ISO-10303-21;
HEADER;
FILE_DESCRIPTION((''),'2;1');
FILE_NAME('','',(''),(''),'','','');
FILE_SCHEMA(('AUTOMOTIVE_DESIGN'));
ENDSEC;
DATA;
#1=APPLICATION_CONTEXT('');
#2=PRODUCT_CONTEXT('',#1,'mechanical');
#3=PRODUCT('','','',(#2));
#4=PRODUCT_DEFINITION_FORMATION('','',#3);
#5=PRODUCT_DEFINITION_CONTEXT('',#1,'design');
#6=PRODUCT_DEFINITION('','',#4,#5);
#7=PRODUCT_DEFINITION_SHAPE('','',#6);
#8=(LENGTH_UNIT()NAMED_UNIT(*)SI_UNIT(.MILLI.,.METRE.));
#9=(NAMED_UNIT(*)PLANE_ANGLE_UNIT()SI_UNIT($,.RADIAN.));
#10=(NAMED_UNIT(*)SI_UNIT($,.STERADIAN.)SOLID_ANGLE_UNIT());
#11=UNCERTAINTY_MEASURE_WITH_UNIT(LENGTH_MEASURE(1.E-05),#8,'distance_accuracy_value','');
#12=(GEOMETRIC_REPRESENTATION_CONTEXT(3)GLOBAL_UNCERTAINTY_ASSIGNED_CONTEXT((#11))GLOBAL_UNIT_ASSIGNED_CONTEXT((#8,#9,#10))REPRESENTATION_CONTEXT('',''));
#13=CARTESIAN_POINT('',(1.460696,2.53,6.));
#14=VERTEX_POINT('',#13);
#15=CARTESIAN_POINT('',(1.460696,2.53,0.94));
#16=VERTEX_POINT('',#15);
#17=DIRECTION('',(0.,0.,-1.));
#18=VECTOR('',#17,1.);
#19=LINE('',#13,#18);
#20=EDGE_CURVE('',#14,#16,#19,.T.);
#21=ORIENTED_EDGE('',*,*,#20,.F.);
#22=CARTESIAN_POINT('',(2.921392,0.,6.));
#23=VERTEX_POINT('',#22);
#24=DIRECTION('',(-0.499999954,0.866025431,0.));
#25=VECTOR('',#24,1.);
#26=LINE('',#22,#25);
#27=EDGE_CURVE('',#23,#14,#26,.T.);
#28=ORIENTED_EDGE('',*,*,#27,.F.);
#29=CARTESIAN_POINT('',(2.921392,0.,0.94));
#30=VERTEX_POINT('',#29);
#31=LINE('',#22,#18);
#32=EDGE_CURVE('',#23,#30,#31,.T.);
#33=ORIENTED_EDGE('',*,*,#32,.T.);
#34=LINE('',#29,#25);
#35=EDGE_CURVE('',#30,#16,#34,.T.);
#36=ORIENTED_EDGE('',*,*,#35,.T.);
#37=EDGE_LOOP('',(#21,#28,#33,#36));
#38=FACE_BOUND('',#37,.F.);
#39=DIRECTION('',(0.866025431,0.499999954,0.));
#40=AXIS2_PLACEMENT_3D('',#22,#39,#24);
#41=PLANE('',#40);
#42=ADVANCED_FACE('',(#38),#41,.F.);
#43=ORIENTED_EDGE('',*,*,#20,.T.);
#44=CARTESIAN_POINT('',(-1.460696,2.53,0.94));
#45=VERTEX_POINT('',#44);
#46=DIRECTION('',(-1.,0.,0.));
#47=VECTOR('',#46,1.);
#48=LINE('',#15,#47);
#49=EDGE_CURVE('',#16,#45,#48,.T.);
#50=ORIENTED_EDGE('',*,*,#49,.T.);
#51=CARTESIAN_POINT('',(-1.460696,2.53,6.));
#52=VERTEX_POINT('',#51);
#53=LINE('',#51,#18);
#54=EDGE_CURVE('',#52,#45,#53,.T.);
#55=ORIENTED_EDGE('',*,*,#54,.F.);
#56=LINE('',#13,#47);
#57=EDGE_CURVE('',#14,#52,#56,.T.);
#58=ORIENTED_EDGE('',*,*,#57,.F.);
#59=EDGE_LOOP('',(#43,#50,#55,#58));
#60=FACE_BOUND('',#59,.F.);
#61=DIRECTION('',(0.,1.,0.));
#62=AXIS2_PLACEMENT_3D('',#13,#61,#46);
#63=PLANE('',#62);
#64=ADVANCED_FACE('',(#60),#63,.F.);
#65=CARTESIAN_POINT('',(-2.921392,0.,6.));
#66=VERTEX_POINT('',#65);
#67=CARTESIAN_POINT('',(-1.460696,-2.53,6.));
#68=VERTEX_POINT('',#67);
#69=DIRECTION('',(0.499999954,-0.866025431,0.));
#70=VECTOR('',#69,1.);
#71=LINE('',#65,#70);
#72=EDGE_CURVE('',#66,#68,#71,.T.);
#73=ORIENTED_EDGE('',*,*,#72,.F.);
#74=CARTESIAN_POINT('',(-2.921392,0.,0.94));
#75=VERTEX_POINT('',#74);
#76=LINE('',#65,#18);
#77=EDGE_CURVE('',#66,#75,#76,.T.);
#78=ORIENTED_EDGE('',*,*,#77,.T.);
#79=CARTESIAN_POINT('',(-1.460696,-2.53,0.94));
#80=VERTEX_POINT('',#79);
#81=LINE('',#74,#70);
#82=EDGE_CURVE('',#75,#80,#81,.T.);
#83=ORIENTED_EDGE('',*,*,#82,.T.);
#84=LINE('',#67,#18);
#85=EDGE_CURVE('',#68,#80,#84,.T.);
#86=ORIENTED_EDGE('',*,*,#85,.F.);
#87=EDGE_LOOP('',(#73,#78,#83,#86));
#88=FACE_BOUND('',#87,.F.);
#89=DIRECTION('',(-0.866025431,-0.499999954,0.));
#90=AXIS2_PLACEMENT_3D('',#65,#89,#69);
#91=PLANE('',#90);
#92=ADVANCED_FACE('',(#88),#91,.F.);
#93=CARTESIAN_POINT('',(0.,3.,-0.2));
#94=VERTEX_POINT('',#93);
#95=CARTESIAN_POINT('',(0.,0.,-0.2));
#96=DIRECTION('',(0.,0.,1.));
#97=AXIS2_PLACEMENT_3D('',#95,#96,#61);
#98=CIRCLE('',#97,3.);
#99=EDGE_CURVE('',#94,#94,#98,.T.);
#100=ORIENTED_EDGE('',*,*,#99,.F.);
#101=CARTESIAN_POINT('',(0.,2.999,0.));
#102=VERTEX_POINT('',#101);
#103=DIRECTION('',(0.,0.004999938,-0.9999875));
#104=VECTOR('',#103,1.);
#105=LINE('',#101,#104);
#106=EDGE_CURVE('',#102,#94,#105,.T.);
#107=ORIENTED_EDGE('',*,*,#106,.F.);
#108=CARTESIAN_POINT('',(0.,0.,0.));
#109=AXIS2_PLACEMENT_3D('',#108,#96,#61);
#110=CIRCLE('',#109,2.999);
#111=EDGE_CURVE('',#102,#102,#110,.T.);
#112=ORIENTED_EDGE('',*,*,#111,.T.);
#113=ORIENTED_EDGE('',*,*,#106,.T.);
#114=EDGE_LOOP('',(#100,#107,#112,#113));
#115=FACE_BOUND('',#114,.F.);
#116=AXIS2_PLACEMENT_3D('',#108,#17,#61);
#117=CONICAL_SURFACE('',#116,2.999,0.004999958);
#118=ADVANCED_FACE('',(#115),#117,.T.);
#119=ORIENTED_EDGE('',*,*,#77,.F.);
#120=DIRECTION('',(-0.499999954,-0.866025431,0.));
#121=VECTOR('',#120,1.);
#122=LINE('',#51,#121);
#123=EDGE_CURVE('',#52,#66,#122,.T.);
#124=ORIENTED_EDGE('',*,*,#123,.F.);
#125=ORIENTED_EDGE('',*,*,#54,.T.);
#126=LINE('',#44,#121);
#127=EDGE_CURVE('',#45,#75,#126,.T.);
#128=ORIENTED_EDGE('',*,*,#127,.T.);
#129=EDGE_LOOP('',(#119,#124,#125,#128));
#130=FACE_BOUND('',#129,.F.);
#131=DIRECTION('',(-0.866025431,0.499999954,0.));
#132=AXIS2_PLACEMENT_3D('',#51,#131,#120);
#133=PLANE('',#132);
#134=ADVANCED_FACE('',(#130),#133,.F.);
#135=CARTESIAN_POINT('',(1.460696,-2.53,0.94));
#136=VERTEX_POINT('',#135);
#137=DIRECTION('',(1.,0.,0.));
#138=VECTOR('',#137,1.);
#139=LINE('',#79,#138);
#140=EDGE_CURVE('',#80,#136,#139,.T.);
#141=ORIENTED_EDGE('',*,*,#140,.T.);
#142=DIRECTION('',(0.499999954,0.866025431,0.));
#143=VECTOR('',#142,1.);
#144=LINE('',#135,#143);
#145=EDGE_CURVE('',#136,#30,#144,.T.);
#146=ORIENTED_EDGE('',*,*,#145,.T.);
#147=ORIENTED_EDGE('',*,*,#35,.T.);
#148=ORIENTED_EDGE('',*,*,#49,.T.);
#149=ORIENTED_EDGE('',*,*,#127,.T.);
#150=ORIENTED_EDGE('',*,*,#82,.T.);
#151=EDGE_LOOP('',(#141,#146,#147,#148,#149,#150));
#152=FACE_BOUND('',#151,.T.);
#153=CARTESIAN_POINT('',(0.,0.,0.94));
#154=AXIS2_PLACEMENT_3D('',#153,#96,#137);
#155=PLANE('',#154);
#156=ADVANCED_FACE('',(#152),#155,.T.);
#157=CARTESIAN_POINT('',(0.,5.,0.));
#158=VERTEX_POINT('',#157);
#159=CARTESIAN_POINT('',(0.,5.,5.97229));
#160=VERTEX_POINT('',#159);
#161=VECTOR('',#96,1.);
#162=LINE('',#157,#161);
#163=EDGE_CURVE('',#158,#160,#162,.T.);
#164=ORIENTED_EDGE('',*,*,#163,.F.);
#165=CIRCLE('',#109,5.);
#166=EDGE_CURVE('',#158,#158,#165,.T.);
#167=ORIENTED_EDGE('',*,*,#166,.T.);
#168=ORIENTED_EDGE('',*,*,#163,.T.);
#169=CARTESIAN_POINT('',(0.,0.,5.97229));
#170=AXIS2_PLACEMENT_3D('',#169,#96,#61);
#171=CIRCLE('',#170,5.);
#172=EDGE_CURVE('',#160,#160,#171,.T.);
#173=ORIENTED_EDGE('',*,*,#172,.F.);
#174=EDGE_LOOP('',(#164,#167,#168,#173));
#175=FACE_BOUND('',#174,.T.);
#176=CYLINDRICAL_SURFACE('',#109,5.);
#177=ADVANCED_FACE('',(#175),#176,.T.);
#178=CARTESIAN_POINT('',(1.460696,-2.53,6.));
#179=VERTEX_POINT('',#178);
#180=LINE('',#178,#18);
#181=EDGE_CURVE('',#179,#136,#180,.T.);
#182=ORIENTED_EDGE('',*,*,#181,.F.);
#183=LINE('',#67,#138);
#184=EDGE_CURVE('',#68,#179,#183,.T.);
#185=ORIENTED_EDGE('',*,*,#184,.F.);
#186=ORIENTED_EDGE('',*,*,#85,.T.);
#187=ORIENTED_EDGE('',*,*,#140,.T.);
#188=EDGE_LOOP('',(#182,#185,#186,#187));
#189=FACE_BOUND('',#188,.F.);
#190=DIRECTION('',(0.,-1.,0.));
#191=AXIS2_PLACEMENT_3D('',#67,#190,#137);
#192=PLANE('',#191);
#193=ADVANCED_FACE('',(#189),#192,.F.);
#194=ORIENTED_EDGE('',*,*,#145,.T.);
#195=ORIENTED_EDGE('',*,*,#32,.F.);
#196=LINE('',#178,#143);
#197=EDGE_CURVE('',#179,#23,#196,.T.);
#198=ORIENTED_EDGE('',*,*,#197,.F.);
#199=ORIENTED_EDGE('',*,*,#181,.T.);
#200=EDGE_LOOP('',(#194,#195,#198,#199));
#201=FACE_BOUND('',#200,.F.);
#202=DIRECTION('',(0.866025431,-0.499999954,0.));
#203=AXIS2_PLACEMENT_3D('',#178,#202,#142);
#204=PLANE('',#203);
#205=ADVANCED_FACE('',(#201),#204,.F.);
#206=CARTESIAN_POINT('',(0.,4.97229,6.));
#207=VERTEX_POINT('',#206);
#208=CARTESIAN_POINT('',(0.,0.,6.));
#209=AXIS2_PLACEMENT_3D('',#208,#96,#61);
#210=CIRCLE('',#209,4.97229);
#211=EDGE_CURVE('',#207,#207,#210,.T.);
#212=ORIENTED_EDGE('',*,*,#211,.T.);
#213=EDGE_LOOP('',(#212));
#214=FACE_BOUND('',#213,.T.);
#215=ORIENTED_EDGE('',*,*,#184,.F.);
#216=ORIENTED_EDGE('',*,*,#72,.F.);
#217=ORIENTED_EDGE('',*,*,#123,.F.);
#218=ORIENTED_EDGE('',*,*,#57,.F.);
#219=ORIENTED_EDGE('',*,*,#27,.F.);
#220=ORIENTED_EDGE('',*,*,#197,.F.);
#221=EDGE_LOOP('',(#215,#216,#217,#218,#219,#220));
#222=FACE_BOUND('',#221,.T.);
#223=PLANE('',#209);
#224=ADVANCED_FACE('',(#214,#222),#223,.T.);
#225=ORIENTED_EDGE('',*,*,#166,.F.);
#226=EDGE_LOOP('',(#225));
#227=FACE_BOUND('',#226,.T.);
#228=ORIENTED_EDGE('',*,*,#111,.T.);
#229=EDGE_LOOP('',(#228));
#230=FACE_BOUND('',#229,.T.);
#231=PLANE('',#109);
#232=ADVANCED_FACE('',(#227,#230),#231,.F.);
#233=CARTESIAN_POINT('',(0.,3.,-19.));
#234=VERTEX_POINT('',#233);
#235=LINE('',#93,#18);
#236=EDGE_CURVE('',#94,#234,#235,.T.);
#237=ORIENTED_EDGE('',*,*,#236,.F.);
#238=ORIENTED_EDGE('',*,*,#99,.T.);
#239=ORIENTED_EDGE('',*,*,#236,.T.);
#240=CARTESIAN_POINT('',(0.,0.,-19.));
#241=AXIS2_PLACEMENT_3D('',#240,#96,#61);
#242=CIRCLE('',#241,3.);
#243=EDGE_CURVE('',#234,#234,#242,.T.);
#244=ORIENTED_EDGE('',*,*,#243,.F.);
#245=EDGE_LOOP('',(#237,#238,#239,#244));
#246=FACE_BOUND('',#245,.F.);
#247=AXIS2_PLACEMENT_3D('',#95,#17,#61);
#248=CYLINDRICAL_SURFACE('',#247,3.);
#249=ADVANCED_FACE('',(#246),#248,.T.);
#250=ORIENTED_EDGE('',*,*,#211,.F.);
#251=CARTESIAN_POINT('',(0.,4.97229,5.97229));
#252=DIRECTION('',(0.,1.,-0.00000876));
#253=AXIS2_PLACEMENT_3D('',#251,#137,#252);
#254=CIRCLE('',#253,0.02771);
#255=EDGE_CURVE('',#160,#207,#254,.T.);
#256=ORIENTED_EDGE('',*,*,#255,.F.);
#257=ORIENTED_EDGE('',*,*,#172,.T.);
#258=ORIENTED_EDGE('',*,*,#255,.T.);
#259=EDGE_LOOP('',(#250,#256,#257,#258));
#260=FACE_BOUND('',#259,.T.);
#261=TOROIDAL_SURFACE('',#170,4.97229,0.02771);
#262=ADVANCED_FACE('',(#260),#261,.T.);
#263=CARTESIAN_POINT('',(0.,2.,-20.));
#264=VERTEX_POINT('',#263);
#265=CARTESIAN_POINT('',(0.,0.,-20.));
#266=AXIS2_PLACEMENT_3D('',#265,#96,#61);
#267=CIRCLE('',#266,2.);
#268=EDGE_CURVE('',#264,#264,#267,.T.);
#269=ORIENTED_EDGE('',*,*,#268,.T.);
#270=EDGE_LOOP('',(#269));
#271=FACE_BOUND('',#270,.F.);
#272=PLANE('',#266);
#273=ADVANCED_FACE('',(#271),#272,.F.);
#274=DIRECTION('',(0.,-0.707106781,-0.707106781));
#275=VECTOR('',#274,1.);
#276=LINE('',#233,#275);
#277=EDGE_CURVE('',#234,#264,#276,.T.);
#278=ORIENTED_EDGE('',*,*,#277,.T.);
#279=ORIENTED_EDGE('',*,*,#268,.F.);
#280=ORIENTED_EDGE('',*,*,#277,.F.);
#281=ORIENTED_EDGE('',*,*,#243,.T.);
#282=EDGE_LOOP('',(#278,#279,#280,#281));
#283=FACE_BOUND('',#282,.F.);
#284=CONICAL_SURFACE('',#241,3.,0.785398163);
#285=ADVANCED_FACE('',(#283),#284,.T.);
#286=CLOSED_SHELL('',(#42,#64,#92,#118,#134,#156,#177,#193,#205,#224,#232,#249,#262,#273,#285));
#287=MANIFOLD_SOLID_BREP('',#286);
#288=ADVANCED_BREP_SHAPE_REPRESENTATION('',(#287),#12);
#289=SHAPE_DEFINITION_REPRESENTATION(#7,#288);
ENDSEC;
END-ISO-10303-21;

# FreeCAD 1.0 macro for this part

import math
import FreeCAD as App
import Part
import Sketcher
Q = App.Units.Quantity

doc = App.newDocument("Part")
params = doc.addObject("Spreadsheet::Sheet", "Params")
for row, (alias, value) in enumerate([
    ("sketch1_width", "2 mm"),
    ("sketch1_height", "26 mm"),
    ("sketch1_height2", "18.8 mm"),
    ("revolution_angle", "360 deg"),
    ("pocket1_length", "5.06 mm"),
], start=1):
    params.set(f"A{row}", alias)
    params.set(f"B{row}", "=" + value)
    params.setAlias(f"B{row}", alias)

body = doc.addObject("PartDesign::Body", "Body")

sketch1 = body.newObject("Sketcher::SketchObject", "Sketch")
sketch1.AttachmentSupport = (doc.getObject("YZ_Plane"), [""])
sketch1.MapMode = "FlatFace"
sketch1.addGeometry([
    Part.LineSegment(App.Vector(2.999, 0, 0), App.Vector(5, 0, 0)),
    Part.LineSegment(App.Vector(5, 0, 0), App.Vector(5, 5.972, 0)),
    Part.ArcOfCircle(Part.Circle(App.Vector(4.972, 5.972, 0), App.Vector(0, 0, 1), 0.028), math.radians(0), math.radians(90)),
    Part.LineSegment(App.Vector(4.972, 6, 0), App.Vector(0, 6, 0)),
    Part.LineSegment(App.Vector(0, 6, 0), App.Vector(0, -20, 0)),
    Part.LineSegment(App.Vector(0, -20, 0), App.Vector(2, -20, 0)),
    Part.LineSegment(App.Vector(2, -20, 0), App.Vector(3, -19, 0)),
    Part.LineSegment(App.Vector(3, -19, 0), App.Vector(3, -0.2, 0)),
    Part.LineSegment(App.Vector(3, -0.2, 0), App.Vector(2.999, 0, 0)),
], False)
sketch1.addConstraint([
    Sketcher.Constraint("Coincident", 0, 2, 1, 1),
    Sketcher.Constraint("Coincident", 1, 2, 2, 1),
    Sketcher.Constraint("Coincident", 2, 2, 3, 1),
    Sketcher.Constraint("Coincident", 3, 2, 4, 1),
    Sketcher.Constraint("Coincident", 4, 2, 5, 1),
    Sketcher.Constraint("Coincident", 5, 2, 6, 1),
    Sketcher.Constraint("Coincident", 6, 2, 7, 1),
    Sketcher.Constraint("Coincident", 7, 2, 8, 1),
    Sketcher.Constraint("Coincident", 8, 2, 0, 1),
    Sketcher.Constraint("Horizontal", 0),
    Sketcher.Constraint("Vertical", 1),
    Sketcher.Constraint("Horizontal", 3),
    Sketcher.Constraint("Vertical", 4),
    Sketcher.Constraint("Horizontal", 5),
    Sketcher.Constraint("Vertical", 7),
    Sketcher.Constraint("PointOnObject", 0, 2, -1),
    Sketcher.Constraint("PointOnObject", 3, 2, -2),
    Sketcher.Constraint("Horizontal", 2, 3, 1, 2),
    Sketcher.Constraint("DistanceX", 5, 1, 5, 2, Q("2 mm")),
    Sketcher.Constraint("DistanceY", 4, 2, 4, 1, Q("26 mm")),
    Sketcher.Constraint("Angle", 6, Q("45 deg")),
    Sketcher.Constraint("DistanceY", 7, 1, 7, 2, Q("18.8 mm")),
    Sketcher.Constraint("DistanceX", -1, 1, 0, 2, Q("5 mm")),
    Sketcher.Constraint("DistanceY", -1, 1, 2, 2, Q("6 mm")),
    Sketcher.Constraint("DistanceX", -1, 1, 6, 2, Q("3 mm")),
    Sketcher.Constraint("DistanceX", 0, 1, 0, 2, Q("2.001 mm")),
    Sketcher.Constraint("Radius", 2, Q("0.02771 mm")),
    Sketcher.Constraint("DistanceX", 3, 2, 3, 1, Q("4.97229 mm")),
])
sketch1.setExpression("Constraints[18]", "Params.sketch1_width")
sketch1.setExpression("Constraints[19]", "Params.sketch1_height")
sketch1.setExpression("Constraints[21]", "Params.sketch1_height2")
revolution = body.newObject("PartDesign::Revolution", "Revolution")
revolution.Profile = sketch1
revolution.ReferenceAxis = (sketch1, ["V_Axis"])
revolution.setExpression("Angle", "Params.revolution_angle")

sketch2 = body.newObject("Sketcher::SketchObject", "Sketch001")
sketch2.AttachmentSupport = (doc.getObject("XY_Plane"), [""])
sketch2.MapMode = "FlatFace"
sketch2.AttachmentOffset = App.Placement(App.Vector(0, 0, 6), App.Rotation())
sketch2.addGeometry([
    Part.LineSegment(App.Vector(2.9, 0, 0), App.Vector(1.5, 2.5, 0)),
    Part.LineSegment(App.Vector(1.5, 2.5, 0), App.Vector(-1.5, 2.5, 0)),
    Part.LineSegment(App.Vector(-1.5, 2.5, 0), App.Vector(-2.9, 0, 0)),
    Part.LineSegment(App.Vector(-2.9, 0, 0), App.Vector(-1.5, -2.5, 0)),
    Part.LineSegment(App.Vector(-1.5, -2.5, 0), App.Vector(1.5, -2.5, 0)),
    Part.LineSegment(App.Vector(1.5, -2.5, 0), App.Vector(2.9, 0, 0)),
], False)
sketch2.addConstraint([
    Sketcher.Constraint("Coincident", 0, 2, 1, 1),
    Sketcher.Constraint("Coincident", 1, 2, 2, 1),
    Sketcher.Constraint("Coincident", 2, 2, 3, 1),
    Sketcher.Constraint("Coincident", 3, 2, 4, 1),
    Sketcher.Constraint("Coincident", 4, 2, 5, 1),
    Sketcher.Constraint("Coincident", 5, 2, 0, 1),
    Sketcher.Constraint("Horizontal", 1),
    Sketcher.Constraint("Horizontal", 4),
    Sketcher.Constraint("Symmetric", 0, 2, 3, 2, -1, 1),
    Sketcher.Constraint("Symmetric", 2, 2, 5, 2, -1, 1),
    Sketcher.Constraint("PointOnObject", 2, 2, -1),
    Sketcher.Constraint("Parallel", 2, 5),
    Sketcher.Constraint("Vertical", 1, 2, 3, 2),
    Sketcher.Constraint("Angle", 0, Q("119.999997 deg")),
    Sketcher.Constraint("DistanceY", -1, 1, 0, 2, Q("2.53 mm")),
    Sketcher.Constraint("DistanceX", 1, 2, 1, 1, Q("2.921392 mm")),
])
pocket1 = body.newObject("PartDesign::Pocket", "Pocket")
pocket1.Profile = sketch2
pocket1.setExpression("Length", "Params.pocket1_length")

doc.recompute()
